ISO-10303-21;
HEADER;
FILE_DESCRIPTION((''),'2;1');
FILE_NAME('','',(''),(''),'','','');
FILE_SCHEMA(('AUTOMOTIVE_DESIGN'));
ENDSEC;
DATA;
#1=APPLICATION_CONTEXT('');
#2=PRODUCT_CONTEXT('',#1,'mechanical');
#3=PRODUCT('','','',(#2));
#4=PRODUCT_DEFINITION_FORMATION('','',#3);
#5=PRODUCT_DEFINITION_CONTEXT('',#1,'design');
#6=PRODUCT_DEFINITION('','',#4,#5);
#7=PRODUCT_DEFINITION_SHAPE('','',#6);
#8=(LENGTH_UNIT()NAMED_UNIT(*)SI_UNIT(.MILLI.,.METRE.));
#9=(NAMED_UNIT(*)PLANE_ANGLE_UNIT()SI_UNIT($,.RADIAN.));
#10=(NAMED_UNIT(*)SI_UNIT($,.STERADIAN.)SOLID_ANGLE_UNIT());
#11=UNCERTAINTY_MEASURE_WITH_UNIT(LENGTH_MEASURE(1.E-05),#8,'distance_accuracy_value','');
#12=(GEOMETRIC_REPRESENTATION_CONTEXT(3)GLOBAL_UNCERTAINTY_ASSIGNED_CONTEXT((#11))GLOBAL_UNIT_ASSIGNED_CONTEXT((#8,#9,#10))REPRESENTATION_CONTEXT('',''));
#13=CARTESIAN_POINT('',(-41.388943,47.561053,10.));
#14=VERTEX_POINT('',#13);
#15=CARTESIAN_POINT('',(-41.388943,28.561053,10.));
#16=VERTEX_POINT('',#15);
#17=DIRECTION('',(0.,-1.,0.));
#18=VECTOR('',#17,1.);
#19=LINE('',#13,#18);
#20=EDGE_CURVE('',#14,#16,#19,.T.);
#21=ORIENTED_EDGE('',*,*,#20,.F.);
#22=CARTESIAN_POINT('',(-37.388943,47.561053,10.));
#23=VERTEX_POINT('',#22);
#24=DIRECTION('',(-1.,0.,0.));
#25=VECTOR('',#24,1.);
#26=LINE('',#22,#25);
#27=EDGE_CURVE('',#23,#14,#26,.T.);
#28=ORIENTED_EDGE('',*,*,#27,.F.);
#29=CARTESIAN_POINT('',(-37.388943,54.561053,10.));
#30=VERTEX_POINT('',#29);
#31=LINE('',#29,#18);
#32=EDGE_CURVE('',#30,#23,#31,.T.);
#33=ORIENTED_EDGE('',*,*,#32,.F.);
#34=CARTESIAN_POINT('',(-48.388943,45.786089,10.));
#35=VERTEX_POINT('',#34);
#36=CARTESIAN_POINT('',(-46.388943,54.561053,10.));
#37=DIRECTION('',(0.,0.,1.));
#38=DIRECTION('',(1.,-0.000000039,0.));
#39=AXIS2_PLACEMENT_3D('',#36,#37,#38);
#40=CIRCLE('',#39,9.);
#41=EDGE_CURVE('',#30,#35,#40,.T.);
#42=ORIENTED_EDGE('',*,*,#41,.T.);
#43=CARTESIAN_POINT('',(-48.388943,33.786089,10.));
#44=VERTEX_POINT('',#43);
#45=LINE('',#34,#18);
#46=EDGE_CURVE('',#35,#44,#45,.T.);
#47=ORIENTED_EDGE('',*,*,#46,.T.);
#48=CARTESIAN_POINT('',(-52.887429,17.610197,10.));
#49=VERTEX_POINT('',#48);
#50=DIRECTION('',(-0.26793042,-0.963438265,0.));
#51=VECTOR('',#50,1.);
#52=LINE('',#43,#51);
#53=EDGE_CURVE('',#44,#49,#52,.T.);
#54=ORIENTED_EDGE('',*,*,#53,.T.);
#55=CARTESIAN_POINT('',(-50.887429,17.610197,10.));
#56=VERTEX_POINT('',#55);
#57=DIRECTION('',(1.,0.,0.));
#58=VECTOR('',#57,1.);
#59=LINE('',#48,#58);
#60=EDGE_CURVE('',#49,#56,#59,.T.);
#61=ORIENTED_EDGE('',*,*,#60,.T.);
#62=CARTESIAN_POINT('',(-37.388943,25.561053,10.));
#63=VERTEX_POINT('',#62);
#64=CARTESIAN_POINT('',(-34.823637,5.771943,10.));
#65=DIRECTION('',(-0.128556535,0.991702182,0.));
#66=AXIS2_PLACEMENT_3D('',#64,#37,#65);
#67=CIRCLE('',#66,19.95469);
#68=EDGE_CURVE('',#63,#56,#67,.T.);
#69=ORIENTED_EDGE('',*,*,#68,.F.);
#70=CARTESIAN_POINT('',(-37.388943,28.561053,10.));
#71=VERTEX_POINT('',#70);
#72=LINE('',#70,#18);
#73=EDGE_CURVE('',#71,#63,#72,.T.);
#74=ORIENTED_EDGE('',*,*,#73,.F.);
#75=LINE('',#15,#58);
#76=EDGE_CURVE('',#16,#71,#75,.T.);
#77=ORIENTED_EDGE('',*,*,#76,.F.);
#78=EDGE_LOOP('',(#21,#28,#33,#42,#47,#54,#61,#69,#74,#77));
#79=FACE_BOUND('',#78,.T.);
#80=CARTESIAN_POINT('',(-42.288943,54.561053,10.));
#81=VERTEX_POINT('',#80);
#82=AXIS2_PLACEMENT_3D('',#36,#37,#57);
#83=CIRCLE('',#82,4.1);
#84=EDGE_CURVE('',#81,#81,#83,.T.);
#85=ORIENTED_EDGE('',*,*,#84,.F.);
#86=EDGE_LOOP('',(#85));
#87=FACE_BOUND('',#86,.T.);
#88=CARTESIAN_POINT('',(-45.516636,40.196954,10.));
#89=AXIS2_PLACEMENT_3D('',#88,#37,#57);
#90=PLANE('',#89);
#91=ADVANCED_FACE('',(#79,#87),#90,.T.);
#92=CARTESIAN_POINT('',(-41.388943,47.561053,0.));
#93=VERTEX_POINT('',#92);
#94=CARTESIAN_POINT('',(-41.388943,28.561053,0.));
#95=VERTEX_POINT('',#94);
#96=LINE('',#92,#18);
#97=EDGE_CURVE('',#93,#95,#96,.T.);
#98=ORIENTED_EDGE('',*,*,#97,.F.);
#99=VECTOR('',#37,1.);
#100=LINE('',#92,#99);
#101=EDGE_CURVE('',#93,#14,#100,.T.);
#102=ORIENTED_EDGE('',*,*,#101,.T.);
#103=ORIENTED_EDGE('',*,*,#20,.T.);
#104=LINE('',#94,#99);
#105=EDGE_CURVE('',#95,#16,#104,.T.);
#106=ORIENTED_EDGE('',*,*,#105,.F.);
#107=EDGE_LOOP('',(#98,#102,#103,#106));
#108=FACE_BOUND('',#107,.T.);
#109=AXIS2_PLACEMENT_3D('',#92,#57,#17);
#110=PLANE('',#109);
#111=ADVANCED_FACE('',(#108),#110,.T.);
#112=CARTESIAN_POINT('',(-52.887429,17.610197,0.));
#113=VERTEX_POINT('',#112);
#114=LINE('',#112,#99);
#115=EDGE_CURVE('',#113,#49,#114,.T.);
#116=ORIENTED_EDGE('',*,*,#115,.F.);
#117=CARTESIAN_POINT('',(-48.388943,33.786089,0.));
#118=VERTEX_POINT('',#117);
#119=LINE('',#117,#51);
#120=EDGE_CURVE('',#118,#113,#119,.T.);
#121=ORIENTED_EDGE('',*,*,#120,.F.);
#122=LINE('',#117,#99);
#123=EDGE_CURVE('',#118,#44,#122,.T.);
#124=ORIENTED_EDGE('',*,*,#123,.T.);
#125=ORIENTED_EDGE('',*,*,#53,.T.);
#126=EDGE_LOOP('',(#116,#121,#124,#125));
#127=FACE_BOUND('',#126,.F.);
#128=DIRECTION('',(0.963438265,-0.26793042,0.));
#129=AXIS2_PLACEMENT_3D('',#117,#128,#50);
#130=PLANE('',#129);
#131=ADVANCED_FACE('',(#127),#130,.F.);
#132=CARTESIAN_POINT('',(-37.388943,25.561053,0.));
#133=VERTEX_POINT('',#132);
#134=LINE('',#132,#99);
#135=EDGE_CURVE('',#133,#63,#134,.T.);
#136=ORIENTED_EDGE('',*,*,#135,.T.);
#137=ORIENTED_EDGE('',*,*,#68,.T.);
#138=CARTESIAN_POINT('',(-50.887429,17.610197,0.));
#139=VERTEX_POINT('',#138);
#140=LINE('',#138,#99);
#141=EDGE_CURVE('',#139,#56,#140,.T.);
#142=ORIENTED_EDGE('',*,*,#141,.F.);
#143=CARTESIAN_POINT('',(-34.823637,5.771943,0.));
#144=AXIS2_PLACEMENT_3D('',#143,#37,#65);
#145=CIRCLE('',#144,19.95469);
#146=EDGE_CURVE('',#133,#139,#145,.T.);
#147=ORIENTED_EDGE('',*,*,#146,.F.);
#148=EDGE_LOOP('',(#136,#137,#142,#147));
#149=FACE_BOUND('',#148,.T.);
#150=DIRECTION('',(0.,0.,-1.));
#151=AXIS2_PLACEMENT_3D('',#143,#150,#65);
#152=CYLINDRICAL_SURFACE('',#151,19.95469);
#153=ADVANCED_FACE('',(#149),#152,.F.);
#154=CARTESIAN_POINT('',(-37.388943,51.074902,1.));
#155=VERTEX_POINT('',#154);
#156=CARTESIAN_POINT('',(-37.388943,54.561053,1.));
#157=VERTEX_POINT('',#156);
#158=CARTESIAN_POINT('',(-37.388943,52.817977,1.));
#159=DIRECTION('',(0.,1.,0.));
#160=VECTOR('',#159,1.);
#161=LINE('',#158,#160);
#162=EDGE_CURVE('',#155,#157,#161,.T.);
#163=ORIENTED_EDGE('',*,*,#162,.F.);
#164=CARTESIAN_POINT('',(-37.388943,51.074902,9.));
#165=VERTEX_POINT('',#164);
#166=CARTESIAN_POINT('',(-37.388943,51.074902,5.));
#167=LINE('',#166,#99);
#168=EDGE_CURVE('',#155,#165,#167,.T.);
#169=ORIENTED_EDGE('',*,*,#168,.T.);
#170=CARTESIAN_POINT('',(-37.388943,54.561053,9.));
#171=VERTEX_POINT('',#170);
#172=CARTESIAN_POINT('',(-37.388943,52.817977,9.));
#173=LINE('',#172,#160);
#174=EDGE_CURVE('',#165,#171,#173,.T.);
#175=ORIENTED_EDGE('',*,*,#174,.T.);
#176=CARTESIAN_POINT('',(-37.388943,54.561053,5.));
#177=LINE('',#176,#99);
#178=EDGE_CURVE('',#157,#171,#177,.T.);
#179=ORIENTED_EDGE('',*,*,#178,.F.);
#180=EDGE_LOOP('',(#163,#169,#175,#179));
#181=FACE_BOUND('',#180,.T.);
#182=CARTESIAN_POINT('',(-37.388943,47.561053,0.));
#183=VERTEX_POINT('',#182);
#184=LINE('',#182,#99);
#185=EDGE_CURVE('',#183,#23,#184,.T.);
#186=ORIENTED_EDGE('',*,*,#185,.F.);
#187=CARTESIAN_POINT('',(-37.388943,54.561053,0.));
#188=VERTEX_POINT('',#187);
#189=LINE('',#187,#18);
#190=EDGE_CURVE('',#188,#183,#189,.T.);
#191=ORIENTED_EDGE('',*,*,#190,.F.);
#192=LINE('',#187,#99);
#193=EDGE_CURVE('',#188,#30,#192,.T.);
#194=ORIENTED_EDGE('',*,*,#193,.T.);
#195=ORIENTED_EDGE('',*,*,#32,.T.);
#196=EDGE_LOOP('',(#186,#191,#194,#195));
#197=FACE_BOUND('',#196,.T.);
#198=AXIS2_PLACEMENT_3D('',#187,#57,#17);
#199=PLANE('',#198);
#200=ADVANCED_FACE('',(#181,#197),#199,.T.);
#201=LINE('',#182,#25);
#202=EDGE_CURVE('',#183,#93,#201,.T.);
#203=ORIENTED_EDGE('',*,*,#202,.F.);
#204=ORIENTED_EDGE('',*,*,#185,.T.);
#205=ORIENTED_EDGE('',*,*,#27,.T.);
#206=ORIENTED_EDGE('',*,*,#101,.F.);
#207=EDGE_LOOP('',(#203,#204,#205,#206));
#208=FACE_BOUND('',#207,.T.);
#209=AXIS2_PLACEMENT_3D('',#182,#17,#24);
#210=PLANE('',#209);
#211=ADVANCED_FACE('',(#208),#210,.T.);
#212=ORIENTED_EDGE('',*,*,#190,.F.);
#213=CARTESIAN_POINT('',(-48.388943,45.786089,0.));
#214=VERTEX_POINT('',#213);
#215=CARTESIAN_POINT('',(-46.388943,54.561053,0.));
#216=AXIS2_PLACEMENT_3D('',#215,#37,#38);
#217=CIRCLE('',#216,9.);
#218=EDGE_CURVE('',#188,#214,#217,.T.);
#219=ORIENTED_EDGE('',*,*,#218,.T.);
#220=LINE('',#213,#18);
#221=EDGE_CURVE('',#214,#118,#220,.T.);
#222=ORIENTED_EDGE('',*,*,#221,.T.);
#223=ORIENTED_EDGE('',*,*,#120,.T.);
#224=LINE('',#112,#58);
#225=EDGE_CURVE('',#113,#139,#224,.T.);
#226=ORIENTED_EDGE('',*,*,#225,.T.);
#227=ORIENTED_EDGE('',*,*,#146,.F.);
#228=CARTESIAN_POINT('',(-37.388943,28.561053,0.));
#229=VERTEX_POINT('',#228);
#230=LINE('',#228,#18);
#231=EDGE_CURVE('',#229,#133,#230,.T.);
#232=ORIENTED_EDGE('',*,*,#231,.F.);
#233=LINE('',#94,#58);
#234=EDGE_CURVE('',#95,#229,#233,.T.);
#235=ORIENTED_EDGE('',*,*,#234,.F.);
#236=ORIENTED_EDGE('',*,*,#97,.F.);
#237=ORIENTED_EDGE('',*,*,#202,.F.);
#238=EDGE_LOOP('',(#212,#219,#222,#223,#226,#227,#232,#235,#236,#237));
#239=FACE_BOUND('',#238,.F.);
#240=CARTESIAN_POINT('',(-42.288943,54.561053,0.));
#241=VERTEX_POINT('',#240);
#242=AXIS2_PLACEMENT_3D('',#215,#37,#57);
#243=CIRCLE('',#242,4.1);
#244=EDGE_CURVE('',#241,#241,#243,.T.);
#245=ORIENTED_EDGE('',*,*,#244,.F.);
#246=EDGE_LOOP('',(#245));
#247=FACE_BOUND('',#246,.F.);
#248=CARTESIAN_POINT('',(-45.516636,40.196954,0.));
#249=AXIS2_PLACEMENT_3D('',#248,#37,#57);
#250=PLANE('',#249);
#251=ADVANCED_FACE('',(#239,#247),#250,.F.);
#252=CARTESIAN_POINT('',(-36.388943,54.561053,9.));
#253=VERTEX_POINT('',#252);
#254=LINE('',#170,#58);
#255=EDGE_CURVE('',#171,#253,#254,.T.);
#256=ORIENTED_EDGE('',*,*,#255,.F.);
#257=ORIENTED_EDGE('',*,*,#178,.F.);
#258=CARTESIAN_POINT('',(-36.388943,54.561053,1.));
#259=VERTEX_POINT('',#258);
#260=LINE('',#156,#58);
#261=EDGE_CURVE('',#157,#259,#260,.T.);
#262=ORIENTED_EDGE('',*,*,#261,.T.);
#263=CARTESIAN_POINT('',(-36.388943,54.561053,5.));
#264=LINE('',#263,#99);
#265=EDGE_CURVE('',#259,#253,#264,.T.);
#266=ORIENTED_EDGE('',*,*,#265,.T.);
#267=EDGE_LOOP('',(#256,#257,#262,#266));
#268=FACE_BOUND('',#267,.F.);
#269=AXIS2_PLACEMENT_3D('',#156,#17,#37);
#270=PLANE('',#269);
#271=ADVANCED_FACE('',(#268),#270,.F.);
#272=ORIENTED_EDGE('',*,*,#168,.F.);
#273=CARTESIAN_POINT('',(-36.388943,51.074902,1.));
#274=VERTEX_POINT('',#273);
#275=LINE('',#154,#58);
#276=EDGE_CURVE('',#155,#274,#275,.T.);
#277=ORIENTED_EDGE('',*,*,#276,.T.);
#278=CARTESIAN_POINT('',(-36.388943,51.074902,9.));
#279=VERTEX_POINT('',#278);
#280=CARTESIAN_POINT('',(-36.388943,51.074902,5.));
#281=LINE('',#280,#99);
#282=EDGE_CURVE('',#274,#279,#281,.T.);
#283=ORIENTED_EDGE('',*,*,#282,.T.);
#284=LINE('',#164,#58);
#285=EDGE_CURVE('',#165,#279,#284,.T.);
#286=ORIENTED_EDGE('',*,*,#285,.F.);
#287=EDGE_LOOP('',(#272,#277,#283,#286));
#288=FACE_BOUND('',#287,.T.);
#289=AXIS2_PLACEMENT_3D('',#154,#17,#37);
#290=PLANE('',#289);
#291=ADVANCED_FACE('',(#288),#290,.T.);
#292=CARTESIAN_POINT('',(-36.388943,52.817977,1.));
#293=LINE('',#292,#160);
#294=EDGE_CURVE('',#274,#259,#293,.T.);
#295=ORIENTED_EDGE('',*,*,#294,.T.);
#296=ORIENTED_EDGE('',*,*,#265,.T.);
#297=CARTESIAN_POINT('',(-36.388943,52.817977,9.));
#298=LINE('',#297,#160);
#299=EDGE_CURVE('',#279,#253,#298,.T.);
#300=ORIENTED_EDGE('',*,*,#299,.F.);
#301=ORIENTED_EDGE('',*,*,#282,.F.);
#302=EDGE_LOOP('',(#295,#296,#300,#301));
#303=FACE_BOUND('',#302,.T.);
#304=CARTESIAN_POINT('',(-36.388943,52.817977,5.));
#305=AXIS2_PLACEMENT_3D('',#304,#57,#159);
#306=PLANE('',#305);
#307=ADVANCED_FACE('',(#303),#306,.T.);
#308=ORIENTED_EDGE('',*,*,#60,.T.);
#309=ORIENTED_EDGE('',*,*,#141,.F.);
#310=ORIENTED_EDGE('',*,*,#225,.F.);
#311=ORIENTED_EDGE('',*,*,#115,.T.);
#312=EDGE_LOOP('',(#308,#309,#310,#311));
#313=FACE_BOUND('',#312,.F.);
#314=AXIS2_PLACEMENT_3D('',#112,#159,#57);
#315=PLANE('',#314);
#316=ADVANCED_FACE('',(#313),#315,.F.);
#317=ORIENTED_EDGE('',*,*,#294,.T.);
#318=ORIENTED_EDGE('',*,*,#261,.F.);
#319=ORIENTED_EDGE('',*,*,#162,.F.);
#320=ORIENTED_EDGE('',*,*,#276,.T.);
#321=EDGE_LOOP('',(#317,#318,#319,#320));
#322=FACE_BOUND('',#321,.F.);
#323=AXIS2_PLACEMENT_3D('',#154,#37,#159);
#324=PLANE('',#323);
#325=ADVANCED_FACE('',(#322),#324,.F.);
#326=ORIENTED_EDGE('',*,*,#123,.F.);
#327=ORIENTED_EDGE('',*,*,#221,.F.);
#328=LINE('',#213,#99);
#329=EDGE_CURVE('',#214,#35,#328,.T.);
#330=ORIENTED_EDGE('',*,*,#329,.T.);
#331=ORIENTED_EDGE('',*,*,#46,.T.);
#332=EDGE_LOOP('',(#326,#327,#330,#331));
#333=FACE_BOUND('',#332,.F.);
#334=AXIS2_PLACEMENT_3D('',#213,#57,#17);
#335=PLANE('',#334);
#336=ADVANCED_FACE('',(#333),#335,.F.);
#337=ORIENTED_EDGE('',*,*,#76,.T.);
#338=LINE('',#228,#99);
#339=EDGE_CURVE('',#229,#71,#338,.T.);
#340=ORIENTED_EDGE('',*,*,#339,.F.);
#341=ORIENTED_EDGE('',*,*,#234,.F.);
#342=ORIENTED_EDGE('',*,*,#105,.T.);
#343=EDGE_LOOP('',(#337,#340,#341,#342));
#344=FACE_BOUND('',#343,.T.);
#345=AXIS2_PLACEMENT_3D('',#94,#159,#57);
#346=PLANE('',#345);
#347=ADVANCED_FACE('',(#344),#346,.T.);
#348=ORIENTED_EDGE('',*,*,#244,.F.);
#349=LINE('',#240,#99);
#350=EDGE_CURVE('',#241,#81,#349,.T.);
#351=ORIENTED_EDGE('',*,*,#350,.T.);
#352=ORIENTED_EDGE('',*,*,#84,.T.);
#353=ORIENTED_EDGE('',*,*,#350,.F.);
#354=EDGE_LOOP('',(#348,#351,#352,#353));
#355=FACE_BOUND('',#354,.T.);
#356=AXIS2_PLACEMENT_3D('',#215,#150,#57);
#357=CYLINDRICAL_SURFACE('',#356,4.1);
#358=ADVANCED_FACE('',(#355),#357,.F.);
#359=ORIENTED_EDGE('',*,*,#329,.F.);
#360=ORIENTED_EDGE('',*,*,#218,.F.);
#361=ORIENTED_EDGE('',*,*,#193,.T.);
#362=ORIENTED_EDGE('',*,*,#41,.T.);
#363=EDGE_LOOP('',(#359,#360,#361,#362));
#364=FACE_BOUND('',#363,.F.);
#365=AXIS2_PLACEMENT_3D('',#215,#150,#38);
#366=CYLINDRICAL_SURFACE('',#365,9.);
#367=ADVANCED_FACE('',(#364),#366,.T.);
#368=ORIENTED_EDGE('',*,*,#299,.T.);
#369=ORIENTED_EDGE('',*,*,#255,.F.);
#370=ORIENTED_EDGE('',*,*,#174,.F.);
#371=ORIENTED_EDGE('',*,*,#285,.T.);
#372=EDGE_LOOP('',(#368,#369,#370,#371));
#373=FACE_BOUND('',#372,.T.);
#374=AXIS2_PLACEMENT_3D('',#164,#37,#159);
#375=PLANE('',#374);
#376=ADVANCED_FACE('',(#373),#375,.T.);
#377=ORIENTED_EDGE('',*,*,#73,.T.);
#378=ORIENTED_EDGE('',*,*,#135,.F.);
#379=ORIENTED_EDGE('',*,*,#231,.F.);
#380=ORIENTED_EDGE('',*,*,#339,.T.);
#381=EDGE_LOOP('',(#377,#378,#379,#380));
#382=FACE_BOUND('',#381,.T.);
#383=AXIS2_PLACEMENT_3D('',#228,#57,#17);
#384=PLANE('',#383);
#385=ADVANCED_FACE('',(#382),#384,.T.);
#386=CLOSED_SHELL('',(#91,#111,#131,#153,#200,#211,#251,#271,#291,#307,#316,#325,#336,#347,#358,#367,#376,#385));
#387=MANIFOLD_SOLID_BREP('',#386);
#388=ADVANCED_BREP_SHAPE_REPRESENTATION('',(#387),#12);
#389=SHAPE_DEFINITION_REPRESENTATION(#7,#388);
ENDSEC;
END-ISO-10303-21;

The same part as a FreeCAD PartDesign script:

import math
import FreeCAD as App
import Part
import Sketcher


def add_polygon(sketch, points):
    """Adds a closed chain of lines whose ends are joined by coincident constraints."""
    first, n = sketch.GeometryCount, len(points)
    for a, b in zip(points, points[1:] + points[:1]):
        sketch.addGeometry(Part.LineSegment(App.Vector(*a, 0), App.Vector(*b, 0)), False)
    for i in range(n):
        sketch.addConstraint(Sketcher.Constraint("Coincident", first + i, 2, first + (i + 1) % n, 1))

doc = App.newDocument("Part")
body = doc.addObject("PartDesign::Body", "Body")

# Sketch on XY plane
sketch1 = doc.addObject("Sketcher::SketchObject", "Sketch")
body.addObject(sketch1)
sketch1.AttachmentSupport = (doc.XY_Plane, [""])
sketch1.MapMode = "FlatFace"
sketch1.addGeometry([
    Part.LineSegment(App.Vector(-48.388943, 45.786089, 0), App.Vector(-48.388943, 33.786089, 0)),  # 0
    Part.LineSegment(App.Vector(-48.388943, 33.786089, 0), App.Vector(-52.887429, 17.610197, 0)),  # 1
    Part.LineSegment(App.Vector(-52.887429, 17.610197, 0), App.Vector(-50.887429, 17.610197, 0)),  # 2
    Part.ArcOfCircle(Part.Circle(App.Vector(-34.823637, 5.771943, 0), App.Vector(0, 0, 1), 19.95469), math.radians(97.386188), math.radians(143.611544)),  # 3
    Part.LineSegment(App.Vector(-37.388943, 25.561053, 0), App.Vector(-37.388943, 28.561053, 0)),  # 4
    Part.LineSegment(App.Vector(-37.388943, 28.561053, 0), App.Vector(-41.388943, 28.561053, 0)),  # 5
    Part.LineSegment(App.Vector(-41.388943, 28.561053, 0), App.Vector(-41.388943, 47.561053, 0)),  # 6
    Part.LineSegment(App.Vector(-41.388943, 47.561053, 0), App.Vector(-37.388943, 47.561053, 0)),  # 7
    Part.LineSegment(App.Vector(-37.388943, 47.561053, 0), App.Vector(-37.388943, 54.561053, 0)),  # 8
    Part.ArcOfCircle(Part.Circle(App.Vector(-46.388943, 54.561053, 0), App.Vector(0, 0, 1), 9), math.radians(-0.000002), math.radians(257.160411)),  # 9
    Part.Circle(App.Vector(-46.388943, 54.561053, 0), App.Vector(0, 0, 1), 4.1),  # 10
], False)
sketch1.addConstraint([
    Sketcher.Constraint("Coincident", 0, 2, 1, 1),
    Sketcher.Constraint("Coincident", 1, 2, 2, 1),
    Sketcher.Constraint("Coincident", 2, 2, 3, 2),
    Sketcher.Constraint("Coincident", 3, 1, 4, 1),
    Sketcher.Constraint("Coincident", 4, 2, 5, 1),
    Sketcher.Constraint("Coincident", 5, 2, 6, 1),
    Sketcher.Constraint("Coincident", 6, 2, 7, 1),
    Sketcher.Constraint("Coincident", 7, 2, 8, 1),
    Sketcher.Constraint("Tangent", 8, 2, 9, 1),
    Sketcher.Constraint("Coincident", 9, 2, 0, 1),
    Sketcher.Constraint("Vertical", 0),
    Sketcher.Constraint("Horizontal", 2),
    Sketcher.Constraint("Vertical", 4),
    Sketcher.Constraint("Horizontal", 5),
    Sketcher.Constraint("Vertical", 6),
    Sketcher.Constraint("Horizontal", 7),
    Sketcher.Constraint("Vertical", 8),
    Sketcher.Constraint("Coincident", 10, 3, 9, 3),
    Sketcher.Constraint("Vertical", 4, 2, 7, 2),
    Sketcher.Constraint("Radius", 9, 9.0),
    Sketcher.Constraint("Diameter", 10, 8.2),
    Sketcher.Constraint("DistanceX", 2, 1, 2, 2, 2.0),
    Sketcher.Constraint("DistanceX", 5, 2, 5, 1, 4.0),
    Sketcher.Constraint("DistanceY", 0, 2, 0, 1, 12.0),
    Sketcher.Constraint("DistanceY", 4, 1, 4, 2, 3.0),
    Sketcher.Constraint("DistanceY", 6, 1, 6, 2, 19.0),
    Sketcher.Constraint("DistanceY", 8, 1, 8, 2, 7.0),
    Sketcher.Constraint("DistanceX", 0, 2, 10, 3, 2.0),
    Sketcher.Constraint("Radius", 3, 19.95469),
    Sketcher.Constraint("DistanceY", -1, 1, 0, 2, 33.786089),
    Sketcher.Constraint("DistanceX", 1, 2, -1, 1, 52.887429),
    Sketcher.Constraint("DistanceY", 3, 3, 9, 3, 48.78911),
    Sketcher.Constraint("DistanceY", 1, 2, 0, 2, 16.175892),
])
pad1 = doc.addObject("PartDesign::Pad", "Pad")
body.addObject(pad1)
pad1.Profile = sketch1
pad1.Length = 10

# Sketch on YZ plane
sketch2 = doc.addObject("Sketcher::SketchObject", "Sketch001")
body.addObject(sketch2)
sketch2.AttachmentSupport = (doc.YZ_Plane, [""])
sketch2.MapMode = "FlatFace"
sketch2.AttachmentOffset = App.Placement(App.Vector(0, 0, -37.388943), App.Rotation())
add_polygon(sketch2, [(51.074902, 9), (51.074902, 1), (54.561053, 1), (54.561053, 9)])  # lines 0-3
sketch2.addConstraint([
    Sketcher.Constraint("Vertical", 0),
    Sketcher.Constraint("Horizontal", 1),
    Sketcher.Constraint("Vertical", 2),
    Sketcher.Constraint("Horizontal", 3),
    Sketcher.Constraint("DistanceY", 0, 2, 0, 1, 8.0),
    Sketcher.Constraint("DistanceY", -1, 1, 0, 2, 1.0),
    Sketcher.Constraint("DistanceX", 1, 1, 1, 2, 3.486151),
    Sketcher.Constraint("DistanceX", -1, 1, 0, 2, 51.074902),
])
pad2 = doc.addObject("PartDesign::Pad", "Pad001")
body.addObject(pad2)
pad2.Profile = sketch2
pad2.Length = 1

doc.recompute()
